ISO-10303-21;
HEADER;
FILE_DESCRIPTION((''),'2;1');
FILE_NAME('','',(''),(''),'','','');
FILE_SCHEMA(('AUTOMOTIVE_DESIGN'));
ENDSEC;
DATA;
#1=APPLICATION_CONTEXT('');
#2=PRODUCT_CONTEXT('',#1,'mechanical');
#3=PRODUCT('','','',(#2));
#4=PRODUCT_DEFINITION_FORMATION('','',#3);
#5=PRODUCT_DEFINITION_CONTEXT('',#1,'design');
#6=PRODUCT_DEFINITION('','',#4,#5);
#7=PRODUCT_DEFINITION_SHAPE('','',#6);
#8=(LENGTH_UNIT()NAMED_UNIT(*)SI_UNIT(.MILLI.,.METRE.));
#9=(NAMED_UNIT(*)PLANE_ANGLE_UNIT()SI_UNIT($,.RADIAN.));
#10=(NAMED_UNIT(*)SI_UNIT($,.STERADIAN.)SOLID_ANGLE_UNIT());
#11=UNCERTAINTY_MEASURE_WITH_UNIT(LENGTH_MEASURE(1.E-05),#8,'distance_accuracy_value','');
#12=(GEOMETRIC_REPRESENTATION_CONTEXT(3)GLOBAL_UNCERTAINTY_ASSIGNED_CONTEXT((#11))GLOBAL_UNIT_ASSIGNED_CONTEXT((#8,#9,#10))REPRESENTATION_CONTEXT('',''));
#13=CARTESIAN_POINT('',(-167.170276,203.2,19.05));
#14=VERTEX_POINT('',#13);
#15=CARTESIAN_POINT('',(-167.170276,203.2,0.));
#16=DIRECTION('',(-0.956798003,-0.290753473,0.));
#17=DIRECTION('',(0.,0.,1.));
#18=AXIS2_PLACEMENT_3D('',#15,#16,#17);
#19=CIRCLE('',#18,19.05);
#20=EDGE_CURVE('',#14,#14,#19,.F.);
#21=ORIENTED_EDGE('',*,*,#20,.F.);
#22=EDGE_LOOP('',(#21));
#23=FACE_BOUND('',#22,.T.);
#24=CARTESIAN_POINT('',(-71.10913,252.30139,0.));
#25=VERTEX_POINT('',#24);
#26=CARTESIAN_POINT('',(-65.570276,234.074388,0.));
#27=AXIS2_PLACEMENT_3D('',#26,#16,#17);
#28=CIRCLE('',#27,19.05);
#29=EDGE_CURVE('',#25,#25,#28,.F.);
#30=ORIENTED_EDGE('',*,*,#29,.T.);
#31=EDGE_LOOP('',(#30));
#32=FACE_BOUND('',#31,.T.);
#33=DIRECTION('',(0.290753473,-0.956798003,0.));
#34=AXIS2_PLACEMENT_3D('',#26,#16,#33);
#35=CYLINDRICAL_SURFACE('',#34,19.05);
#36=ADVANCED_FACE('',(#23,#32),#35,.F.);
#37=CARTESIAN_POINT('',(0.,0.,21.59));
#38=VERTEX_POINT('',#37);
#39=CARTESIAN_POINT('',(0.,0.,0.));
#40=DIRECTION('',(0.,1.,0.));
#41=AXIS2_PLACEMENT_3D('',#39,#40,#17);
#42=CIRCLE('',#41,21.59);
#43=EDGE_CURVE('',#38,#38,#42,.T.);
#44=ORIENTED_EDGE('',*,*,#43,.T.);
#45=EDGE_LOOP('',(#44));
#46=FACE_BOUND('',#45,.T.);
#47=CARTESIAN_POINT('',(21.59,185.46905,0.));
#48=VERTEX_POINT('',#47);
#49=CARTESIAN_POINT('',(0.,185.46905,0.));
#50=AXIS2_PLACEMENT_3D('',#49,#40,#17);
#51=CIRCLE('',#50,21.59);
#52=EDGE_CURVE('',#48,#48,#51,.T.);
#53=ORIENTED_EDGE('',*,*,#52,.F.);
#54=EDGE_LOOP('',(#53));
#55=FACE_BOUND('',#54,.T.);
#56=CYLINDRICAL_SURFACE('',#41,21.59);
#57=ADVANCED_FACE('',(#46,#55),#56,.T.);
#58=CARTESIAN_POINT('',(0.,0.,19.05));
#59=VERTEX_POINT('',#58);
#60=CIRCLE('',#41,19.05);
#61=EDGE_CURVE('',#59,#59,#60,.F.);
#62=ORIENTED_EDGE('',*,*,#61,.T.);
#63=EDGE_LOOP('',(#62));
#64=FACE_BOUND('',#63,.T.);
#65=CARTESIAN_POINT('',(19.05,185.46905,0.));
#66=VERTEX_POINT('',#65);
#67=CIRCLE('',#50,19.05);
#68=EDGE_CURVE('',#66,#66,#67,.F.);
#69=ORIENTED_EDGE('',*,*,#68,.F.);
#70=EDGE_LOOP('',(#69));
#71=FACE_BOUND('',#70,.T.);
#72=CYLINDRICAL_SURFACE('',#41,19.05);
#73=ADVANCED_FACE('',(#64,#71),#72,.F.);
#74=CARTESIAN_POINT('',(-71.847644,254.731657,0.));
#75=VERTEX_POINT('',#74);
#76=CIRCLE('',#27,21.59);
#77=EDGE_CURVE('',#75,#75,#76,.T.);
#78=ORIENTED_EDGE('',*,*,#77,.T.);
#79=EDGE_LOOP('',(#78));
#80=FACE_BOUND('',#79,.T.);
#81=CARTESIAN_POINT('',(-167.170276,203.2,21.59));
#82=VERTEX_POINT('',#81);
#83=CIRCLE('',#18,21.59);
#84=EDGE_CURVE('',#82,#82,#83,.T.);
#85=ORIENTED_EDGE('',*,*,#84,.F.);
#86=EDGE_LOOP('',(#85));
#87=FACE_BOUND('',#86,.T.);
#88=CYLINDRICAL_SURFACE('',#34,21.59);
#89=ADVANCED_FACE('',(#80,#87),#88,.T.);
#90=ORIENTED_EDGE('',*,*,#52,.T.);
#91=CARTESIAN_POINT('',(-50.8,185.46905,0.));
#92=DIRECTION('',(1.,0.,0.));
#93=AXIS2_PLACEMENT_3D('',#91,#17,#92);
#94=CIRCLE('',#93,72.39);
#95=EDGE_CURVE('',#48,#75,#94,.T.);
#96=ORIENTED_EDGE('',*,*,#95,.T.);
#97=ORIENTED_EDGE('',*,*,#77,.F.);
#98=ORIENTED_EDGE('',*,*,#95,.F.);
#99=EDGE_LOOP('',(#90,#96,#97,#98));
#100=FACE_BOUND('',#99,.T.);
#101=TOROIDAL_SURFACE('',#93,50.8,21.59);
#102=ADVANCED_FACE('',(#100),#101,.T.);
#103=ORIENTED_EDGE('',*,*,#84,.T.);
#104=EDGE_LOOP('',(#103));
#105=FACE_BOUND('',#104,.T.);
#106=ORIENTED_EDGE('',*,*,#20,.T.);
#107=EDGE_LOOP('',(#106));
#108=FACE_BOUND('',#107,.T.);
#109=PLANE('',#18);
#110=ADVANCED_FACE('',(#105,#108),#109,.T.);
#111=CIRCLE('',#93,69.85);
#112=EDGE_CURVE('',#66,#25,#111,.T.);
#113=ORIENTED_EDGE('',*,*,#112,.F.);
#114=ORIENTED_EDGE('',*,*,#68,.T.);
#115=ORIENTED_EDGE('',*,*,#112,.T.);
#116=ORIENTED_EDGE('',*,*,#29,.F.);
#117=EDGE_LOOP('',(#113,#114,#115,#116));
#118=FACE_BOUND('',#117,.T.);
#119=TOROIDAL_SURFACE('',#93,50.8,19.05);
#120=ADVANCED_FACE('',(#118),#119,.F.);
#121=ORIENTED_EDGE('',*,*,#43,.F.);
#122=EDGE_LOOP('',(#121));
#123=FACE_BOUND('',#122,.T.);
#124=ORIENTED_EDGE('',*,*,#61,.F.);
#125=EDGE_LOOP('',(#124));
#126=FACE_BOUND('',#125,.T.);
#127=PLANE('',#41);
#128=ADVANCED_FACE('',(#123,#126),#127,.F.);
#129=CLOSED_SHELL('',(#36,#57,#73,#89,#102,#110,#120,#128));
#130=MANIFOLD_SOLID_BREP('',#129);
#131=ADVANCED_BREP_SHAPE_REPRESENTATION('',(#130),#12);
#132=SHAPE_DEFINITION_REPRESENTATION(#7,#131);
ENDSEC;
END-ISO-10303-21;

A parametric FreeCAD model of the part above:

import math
import FreeCAD as App
import Part
import Sketcher
from FreeCAD import Vector
Q = App.Units.Quantity

doc = App.newDocument("Part")
params = doc.addObject("Spreadsheet::Sheet", "Params")
for row, (alias, value) in enumerate([
    ("sketch1_diameter", "1.7 in"),
    ("sketch1_diameter2", "1.5 in"),
    ("sketch2_radius", "2 in"),
], start=1):
    params.set(f"A{row}", alias)
    params.set(f"B{row}", "=" + value)
    params.setAlias(f"B{row}", alias)

body = doc.addObject("PartDesign::Body", "Body")

# Sketch on XZ plane
sketch1 = body.newObject("Sketcher::SketchObject", "Sketch")
sketch1.AttachmentSupport = (doc.getObject("XZ_Plane"), [""])
sketch1.MapMode = "FlatFace"
sketch1.addGeometry(Part.Circle(Vector(0, 0, 0), Vector(0, 0, 1), 22), False)
sketch1.addGeometry(Part.Circle(Vector(0, 0, 0), Vector(0, 0, 1), 19), False)
sketch1.addConstraint(Sketcher.Constraint("Coincident", 0, 3, -1, 1))
sketch1.addConstraint(Sketcher.Constraint("Coincident", 1, 3, -1, 1))
sketch1.addConstraint(Sketcher.Constraint("Diameter", 0, Q("1.7 in")))
sketch1.addConstraint(Sketcher.Constraint("Diameter", 1, Q("1.5 in")))
sketch1.setExpression("Constraints[2]", "Params.sketch1_diameter")
sketch1.setExpression("Constraints[3]", "Params.sketch1_diameter2")

# Sketch on XY plane
sketch2 = body.newObject("Sketcher::SketchObject", "Sketch001")
sketch2.AttachmentSupport = (doc.getObject("XY_Plane"), [""])
sketch2.MapMode = "FlatFace"
sketch2.addGeometry(Part.LineSegment(Vector(0, 0, 0), Vector(0, 185, 0)), False)
sketch2.addGeometry(Part.ArcOfCircle(Part.Circle(Vector(-51, 185, 0), Vector(0, 0, 1), 51), math.radians(0), math.radians(107)), False)
sketch2.addGeometry(Part.LineSegment(Vector(-66, 234, 0), Vector(-167, 203, 0)), False)
sketch2.addConstraint(Sketcher.Constraint("Tangent", 0, 2, 1, 1))
sketch2.addConstraint(Sketcher.Constraint("Tangent", 1, 2, 2, 1))
sketch2.addConstraint(Sketcher.Constraint("Vertical", 0))
sketch2.addConstraint(Sketcher.Constraint("Coincident", 0, 1, -1, 1))
sketch2.addConstraint(Sketcher.Constraint("Radius", 1, Q("2 in")))
sketch2.addConstraint(Sketcher.Constraint("DistanceY", -1, 1, 2, 2, Q("8 in")))
sketch2.addConstraint(Sketcher.Constraint("DistanceX", 2, 2, 1, 2, Q("4 in")))
sketch2.addConstraint(Sketcher.Constraint("DistanceY", 0, 1, 0, 2, 185.46905))
sketch2.setExpression("Constraints[4]", "Params.sketch2_radius")
doc.recompute()

additivepipe = body.newObject("PartDesign::AdditivePipe", "AdditivePipe")
additivepipe.Profile = sketch1
additivepipe.Spine = (sketch2, ["Edge1", "Edge2", "Edge3"])

doc.recompute()
